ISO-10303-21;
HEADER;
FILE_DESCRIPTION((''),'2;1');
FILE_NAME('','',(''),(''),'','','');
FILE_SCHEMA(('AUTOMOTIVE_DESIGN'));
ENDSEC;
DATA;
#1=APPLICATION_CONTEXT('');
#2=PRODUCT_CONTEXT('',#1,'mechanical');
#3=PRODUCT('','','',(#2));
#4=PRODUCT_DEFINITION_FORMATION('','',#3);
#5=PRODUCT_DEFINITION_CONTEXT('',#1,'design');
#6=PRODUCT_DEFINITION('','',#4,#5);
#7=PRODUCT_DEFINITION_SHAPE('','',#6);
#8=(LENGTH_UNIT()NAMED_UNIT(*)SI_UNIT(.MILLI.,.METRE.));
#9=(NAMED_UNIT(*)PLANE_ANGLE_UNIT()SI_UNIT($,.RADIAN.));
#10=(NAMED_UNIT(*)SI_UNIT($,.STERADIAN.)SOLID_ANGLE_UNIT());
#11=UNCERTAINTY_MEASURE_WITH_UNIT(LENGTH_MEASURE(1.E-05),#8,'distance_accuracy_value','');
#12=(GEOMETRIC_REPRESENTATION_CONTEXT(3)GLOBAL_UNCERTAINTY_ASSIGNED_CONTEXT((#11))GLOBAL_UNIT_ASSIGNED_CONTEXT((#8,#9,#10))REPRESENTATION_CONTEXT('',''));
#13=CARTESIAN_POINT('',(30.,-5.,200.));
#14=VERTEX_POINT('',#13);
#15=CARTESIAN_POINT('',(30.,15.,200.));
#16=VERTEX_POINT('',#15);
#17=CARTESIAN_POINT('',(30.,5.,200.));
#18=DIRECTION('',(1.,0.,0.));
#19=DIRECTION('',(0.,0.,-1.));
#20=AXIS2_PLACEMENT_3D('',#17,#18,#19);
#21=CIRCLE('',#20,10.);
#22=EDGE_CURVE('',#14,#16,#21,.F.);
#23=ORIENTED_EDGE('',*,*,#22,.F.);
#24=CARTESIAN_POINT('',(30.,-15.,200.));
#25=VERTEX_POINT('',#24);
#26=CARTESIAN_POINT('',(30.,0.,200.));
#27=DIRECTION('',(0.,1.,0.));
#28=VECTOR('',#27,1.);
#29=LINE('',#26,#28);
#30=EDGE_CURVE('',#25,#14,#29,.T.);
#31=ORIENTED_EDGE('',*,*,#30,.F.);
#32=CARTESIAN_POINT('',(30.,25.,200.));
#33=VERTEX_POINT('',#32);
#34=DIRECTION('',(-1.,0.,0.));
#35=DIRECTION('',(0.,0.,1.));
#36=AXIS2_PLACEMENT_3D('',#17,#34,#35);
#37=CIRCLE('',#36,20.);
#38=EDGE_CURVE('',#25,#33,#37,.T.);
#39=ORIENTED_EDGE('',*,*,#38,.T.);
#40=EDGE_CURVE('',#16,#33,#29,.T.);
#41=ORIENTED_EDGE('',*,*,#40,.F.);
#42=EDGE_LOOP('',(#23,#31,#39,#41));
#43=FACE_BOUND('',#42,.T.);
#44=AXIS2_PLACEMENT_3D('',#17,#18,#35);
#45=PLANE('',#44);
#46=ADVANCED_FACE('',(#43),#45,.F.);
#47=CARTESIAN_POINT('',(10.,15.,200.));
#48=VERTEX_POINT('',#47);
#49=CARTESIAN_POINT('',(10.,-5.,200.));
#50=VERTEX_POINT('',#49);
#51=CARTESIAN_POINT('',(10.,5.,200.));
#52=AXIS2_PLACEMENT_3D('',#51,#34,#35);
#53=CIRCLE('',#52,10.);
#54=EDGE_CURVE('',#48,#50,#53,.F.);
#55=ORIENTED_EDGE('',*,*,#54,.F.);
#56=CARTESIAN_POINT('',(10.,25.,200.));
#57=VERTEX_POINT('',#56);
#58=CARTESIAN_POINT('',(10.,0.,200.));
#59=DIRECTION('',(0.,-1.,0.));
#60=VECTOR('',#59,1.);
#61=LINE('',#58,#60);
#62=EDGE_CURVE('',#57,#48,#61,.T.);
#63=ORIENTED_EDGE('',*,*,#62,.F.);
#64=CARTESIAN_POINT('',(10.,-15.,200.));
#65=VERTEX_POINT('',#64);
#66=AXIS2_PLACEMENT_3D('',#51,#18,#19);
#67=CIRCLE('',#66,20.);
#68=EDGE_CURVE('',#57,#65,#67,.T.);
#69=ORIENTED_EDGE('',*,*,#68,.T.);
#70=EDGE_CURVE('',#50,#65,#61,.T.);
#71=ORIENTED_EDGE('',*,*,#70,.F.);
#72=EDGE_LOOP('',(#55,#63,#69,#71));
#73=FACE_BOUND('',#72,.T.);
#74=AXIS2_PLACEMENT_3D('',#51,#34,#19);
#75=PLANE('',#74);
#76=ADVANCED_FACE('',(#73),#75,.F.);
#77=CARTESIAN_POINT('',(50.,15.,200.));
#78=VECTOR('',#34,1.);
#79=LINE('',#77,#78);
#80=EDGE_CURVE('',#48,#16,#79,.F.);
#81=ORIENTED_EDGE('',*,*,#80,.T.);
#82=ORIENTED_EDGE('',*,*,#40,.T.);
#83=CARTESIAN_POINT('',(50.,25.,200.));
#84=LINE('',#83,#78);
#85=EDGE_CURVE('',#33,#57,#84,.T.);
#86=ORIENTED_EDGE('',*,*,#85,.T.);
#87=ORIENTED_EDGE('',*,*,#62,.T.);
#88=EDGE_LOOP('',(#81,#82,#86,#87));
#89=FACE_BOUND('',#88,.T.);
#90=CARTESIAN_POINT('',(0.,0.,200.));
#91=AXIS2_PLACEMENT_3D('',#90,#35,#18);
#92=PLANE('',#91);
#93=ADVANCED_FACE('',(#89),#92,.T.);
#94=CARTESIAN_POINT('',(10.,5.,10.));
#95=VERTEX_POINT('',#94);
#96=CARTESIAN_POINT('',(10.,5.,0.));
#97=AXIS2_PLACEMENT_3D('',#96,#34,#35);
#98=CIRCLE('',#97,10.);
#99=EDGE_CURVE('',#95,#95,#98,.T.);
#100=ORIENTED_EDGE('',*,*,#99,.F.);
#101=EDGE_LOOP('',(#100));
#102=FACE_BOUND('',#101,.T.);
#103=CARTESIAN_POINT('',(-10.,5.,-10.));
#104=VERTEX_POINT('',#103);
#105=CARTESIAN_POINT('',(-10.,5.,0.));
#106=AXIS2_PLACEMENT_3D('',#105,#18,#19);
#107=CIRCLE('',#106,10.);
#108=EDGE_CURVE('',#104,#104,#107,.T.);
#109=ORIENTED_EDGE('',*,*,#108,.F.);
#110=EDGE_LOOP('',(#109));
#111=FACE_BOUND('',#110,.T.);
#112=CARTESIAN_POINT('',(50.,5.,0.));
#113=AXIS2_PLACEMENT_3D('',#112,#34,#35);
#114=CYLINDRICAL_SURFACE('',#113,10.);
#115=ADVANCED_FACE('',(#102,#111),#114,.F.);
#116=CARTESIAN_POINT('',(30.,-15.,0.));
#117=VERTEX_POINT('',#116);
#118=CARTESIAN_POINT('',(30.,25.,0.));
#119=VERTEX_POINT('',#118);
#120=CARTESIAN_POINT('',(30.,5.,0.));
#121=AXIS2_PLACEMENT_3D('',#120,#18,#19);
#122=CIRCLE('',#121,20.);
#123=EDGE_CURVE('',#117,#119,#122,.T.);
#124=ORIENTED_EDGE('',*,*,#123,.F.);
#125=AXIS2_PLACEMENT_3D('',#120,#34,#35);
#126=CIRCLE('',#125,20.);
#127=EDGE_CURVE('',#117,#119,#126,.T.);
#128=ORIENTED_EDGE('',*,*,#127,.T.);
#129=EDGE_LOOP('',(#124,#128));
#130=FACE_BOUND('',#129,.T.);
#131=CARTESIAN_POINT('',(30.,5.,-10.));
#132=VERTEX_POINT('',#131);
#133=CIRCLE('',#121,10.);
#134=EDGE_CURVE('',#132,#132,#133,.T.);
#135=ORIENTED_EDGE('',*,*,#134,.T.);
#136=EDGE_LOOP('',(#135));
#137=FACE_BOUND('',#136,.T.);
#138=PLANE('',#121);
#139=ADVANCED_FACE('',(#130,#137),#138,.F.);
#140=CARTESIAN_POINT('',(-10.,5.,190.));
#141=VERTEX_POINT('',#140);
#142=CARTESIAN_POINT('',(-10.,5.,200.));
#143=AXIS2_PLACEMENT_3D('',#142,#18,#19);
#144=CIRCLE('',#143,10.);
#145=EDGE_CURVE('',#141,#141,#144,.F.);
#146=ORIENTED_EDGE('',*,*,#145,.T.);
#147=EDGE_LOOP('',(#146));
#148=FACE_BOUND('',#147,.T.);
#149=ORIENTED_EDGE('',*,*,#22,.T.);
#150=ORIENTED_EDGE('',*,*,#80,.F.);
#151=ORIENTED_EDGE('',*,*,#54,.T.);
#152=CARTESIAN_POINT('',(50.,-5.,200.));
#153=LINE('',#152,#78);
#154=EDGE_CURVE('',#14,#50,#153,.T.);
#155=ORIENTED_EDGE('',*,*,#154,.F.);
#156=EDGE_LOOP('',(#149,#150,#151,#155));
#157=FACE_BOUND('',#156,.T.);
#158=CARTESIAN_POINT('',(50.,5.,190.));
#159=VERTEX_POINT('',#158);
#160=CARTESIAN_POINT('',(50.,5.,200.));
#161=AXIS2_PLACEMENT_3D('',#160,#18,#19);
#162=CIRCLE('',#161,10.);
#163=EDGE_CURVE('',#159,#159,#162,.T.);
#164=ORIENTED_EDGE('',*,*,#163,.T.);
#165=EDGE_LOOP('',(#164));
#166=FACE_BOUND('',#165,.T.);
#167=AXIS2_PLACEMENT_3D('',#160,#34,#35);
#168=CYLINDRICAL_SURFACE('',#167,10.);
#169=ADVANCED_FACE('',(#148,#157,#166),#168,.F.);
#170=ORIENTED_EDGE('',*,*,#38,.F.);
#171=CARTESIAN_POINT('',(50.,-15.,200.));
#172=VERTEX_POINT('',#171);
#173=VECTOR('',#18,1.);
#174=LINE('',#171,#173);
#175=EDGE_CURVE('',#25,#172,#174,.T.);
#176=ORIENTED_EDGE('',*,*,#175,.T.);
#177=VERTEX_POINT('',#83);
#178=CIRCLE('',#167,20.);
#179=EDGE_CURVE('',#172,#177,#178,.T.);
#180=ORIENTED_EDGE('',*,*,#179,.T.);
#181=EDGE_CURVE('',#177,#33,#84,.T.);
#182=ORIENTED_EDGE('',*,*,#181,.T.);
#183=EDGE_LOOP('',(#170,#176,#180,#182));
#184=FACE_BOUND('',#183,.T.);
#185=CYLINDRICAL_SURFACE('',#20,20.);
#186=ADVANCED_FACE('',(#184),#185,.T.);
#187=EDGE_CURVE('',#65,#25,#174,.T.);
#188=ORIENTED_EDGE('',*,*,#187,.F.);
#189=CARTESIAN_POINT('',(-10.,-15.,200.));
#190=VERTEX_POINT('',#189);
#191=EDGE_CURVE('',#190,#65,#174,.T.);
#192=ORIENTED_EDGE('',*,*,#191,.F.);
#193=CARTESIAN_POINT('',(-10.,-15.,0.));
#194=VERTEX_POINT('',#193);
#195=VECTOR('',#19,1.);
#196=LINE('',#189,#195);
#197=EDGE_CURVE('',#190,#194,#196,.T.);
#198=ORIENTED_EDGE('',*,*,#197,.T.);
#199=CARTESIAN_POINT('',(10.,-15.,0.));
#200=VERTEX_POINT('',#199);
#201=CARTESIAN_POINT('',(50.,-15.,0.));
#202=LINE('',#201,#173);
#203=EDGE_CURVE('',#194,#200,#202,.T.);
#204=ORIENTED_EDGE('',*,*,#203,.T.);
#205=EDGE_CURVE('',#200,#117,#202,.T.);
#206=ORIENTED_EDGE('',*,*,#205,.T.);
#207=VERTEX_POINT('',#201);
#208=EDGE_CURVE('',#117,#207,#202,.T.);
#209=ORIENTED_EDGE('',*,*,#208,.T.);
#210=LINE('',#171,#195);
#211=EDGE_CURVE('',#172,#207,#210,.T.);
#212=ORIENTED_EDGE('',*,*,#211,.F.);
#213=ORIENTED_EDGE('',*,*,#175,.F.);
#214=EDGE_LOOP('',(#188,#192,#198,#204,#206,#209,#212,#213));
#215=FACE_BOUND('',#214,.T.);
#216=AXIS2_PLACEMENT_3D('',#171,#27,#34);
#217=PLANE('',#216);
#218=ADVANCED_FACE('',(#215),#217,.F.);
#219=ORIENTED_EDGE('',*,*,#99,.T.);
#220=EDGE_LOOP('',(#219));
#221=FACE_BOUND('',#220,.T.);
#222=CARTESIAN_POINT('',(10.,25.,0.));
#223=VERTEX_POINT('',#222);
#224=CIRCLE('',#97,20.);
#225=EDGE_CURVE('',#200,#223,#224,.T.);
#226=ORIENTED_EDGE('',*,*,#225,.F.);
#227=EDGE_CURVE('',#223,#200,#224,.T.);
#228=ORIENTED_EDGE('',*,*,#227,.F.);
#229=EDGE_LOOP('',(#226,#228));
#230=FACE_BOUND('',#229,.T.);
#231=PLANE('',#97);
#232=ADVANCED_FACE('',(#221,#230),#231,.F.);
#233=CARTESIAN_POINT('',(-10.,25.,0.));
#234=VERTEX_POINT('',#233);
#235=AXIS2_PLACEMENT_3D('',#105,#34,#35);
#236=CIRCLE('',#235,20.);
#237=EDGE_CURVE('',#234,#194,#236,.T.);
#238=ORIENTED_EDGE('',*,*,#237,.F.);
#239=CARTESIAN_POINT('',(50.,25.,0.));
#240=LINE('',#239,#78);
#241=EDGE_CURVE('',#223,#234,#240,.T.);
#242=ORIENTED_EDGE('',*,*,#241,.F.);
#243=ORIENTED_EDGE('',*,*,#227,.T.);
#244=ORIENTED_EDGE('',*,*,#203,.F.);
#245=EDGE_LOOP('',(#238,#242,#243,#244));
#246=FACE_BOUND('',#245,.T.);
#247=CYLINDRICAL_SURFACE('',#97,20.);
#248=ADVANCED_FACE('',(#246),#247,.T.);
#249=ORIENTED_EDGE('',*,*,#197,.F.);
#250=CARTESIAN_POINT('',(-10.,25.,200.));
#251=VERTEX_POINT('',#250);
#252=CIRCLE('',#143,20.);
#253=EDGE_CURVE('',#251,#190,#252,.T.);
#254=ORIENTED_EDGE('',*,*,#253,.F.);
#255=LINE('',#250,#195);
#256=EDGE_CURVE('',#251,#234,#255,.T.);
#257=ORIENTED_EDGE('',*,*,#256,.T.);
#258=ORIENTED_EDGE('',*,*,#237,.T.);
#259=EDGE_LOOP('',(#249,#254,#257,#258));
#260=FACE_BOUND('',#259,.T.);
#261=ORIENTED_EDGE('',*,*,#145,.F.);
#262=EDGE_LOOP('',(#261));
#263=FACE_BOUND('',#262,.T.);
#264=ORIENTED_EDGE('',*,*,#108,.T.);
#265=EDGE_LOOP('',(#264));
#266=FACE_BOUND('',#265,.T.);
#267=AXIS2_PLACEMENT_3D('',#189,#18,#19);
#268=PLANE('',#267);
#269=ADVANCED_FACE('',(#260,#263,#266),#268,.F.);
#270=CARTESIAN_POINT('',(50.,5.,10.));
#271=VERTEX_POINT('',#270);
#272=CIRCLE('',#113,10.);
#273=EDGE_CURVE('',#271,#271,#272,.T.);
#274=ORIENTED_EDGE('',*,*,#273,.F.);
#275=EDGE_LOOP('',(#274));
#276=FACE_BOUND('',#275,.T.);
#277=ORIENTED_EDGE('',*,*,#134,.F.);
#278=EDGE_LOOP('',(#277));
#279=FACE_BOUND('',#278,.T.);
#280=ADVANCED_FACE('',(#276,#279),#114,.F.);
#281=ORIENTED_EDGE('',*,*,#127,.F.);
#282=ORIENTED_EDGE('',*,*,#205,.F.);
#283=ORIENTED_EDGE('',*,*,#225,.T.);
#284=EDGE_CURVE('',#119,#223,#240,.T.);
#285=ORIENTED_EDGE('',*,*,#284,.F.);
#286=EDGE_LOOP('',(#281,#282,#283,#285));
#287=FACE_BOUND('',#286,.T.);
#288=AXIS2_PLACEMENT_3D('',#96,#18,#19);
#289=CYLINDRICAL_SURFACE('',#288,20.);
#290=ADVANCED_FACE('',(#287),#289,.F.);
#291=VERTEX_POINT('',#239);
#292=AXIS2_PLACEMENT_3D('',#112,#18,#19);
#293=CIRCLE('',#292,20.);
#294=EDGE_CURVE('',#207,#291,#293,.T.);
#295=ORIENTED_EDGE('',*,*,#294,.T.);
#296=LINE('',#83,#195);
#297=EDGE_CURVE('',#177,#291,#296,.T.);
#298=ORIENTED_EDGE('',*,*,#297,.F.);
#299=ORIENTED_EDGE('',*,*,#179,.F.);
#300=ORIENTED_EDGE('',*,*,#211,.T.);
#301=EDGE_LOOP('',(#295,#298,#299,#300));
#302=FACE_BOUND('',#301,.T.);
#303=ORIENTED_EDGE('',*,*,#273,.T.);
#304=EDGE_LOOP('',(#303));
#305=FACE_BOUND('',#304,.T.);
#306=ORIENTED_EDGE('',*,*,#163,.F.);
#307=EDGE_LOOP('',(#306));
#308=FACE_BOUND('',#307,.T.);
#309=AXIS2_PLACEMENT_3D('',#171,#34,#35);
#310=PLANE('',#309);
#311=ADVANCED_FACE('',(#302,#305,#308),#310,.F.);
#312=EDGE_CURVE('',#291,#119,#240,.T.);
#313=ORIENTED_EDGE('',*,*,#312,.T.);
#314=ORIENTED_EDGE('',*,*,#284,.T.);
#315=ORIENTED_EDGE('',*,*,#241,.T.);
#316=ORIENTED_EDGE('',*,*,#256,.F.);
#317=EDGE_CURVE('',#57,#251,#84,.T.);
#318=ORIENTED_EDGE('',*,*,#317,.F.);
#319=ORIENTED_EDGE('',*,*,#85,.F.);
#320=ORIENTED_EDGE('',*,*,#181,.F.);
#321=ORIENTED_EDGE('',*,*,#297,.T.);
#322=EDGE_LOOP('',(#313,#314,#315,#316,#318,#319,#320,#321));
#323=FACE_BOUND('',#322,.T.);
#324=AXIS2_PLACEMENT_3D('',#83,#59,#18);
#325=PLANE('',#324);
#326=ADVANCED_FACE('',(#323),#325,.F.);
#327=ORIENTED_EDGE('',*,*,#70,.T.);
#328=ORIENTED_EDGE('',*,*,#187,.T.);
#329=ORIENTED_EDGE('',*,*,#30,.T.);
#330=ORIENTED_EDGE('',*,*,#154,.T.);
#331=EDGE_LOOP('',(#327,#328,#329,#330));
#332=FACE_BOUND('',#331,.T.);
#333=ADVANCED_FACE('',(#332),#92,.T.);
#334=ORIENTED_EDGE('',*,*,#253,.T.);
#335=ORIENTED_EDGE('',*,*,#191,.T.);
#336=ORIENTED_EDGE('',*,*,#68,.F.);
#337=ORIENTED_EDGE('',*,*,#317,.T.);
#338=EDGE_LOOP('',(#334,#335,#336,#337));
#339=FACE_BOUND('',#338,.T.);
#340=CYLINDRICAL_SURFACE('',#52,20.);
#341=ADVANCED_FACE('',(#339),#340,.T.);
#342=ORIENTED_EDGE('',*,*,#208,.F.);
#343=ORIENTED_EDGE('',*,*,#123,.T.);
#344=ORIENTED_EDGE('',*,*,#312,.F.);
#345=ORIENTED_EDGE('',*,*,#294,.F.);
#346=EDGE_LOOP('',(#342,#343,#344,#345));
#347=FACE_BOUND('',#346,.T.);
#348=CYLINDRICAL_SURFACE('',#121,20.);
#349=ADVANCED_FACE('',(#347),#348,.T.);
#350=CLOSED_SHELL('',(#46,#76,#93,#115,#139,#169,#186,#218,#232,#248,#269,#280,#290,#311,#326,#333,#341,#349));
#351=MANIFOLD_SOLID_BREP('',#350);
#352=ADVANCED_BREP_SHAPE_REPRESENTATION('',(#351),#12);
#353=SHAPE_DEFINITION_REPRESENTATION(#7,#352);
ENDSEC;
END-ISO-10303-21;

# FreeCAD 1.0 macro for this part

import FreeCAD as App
import Part
import Sketcher

V = App.Vector
Q = App.Units.Quantity


def add_polygon(sketch, points):
    """Adds a closed chain of lines whose ends are joined by coincident constraints."""
    first, n = sketch.GeometryCount, len(points)
    for a, b in zip(points, points[1:] + points[:1]):
        sketch.addGeometry(Part.LineSegment(App.Vector(*a, 0), App.Vector(*b, 0)), False)
    for i in range(n):
        sketch.addConstraint(Sketcher.Constraint("Coincident", first + i, 2, first + (i + 1) % n, 1))

doc = App.newDocument("Part")
body = doc.addObject("PartDesign::Body", "Body")

# Sketch on XY plane
sketch1 = body.newObject("Sketcher::SketchObject", "Sketch")
sketch1.AttachmentSupport = (doc.getObject("XY_Plane"), [""])
sketch1.MapMode = "FlatFace"
add_polygon(sketch1, [(-10, 25), (-10, -15), (50, -15), (50, 25)])  # lines 0-3
sketch1.addConstraint([
    Sketcher.Constraint("Vertical", 0),
    Sketcher.Constraint("Horizontal", 1),
    Sketcher.Constraint("Vertical", 2),
    Sketcher.Constraint("Horizontal", 3),
    Sketcher.Constraint("DistanceX", 1, 1, 1, 2, Q("60 mm")),
    Sketcher.Constraint("DistanceY", 0, 2, 0, 1, Q("40 mm")),
    Sketcher.Constraint("DistanceX", 0, 2, -1, 1, Q("10 mm")),
    Sketcher.Constraint("DistanceY", 0, 2, -1, 1, Q("15 mm")),
])
pad1 = body.newObject("PartDesign::Pad", "Pad")
pad1.Profile = sketch1
pad1.Length = 200

# Sketch on YZ plane
sketch2 = body.newObject("Sketcher::SketchObject", "Sketch001")
sketch2.AttachmentSupport = (doc.getObject("YZ_Plane"), [""])
sketch2.MapMode = "FlatFace"
sketch2.AttachmentOffset = App.Placement(V(0, 0, 50), App.Rotation())
sketch2.addGeometry(Part.Circle(V(5, 0, 0), V(0, 0, 1), 20), False)
sketch2.addConstraint([
    Sketcher.Constraint("PointOnObject", 0, 3, -1),
    Sketcher.Constraint("Diameter", 0, Q("40 mm")),
    Sketcher.Constraint("DistanceX", -1, 1, 0, 3, Q("5 mm")),
])
pad2 = body.newObject("PartDesign::Pad", "Pad001")
pad2.Profile = sketch2
pad2.Length = 20
pad2.Reversed = True

# Sketch on YZ plane
sketch3 = body.newObject("Sketcher::SketchObject", "Sketch002")
sketch3.AttachmentSupport = (doc.getObject("YZ_Plane"), [""])
sketch3.MapMode = "FlatFace"
sketch3.AttachmentOffset = App.Placement(V(0, 0, 10), App.Rotation())
sketch3.addGeometry(Part.Circle(V(5, 0, 0), V(0, 0, 1), 20), False)
sketch3.addConstraint([
    Sketcher.Constraint("PointOnObject", 0, 3, -1),
    Sketcher.Constraint("Diameter", 0, Q("40 mm")),
    Sketcher.Constraint("DistanceX", -1, 1, 0, 3, Q("5 mm")),
])
pad3 = body.newObject("PartDesign::Pad", "Pad002")
pad3.Profile = sketch3
pad3.Length = 20
pad3.Reversed = True

# Sketch on YZ plane
sketch4 = body.newObject("Sketcher::SketchObject", "Sketch003")
sketch4.AttachmentSupport = (doc.getObject("YZ_Plane"), [""])
sketch4.MapMode = "FlatFace"
sketch4.AttachmentOffset = App.Placement(V(0, 0, -10), App.Rotation())
sketch4.addGeometry(Part.Circle(V(5, 0, 0), V(0, 0, 1), 10), False)
sketch4.addConstraint([
    Sketcher.Constraint("PointOnObject", 0, 3, -1),
    Sketcher.Constraint("Diameter", 0, Q("20 mm")),
    Sketcher.Constraint("DistanceX", -1, 1, 0, 3, Q("5 mm")),
])
pocket1 = body.newObject("PartDesign::Pocket", "Pocket")
pocket1.Profile = sketch4
pocket1.Length = 422.594817
pocket1.Midplane = True
doc.recompute()

datumplane = body.newObject("PartDesign::Plane", "DatumPlane")
datumplane.AttachmentSupport = (doc.getObject("XY_Plane"), [""])
datumplane.MapMode = "FlatFace"
datumplane.AttachmentOffset = App.Placement(V(0, 0, 100), App.Rotation())
mirrored = body.newObject("PartDesign::Mirrored", "Mirrored")
mirrored.Originals = [pad2, pad3, pocket1]
mirrored.MirrorPlane = (datumplane, [""])
body.Tip = mirrored

# Sketch on YZ plane
sketch5 = body.newObject("Sketcher::SketchObject", "Sketch004")
sketch5.AttachmentSupport = (doc.getObject("YZ_Plane"), [""])
sketch5.MapMode = "FlatFace"
sketch5.AttachmentOffset = App.Placement(V(0, 0, 30), App.Rotation())
sketch5.addGeometry(Part.Circle(V(5, 0, 0), V(0, 0, 1), 20), False)
sketch5.addConstraint([
    Sketcher.Constraint("PointOnObject", 0, 3, -1),
    Sketcher.Constraint("Diameter", 0, Q("40 mm")),
    Sketcher.Constraint("DistanceX", -1, 1, 0, 3, Q("5 mm")),
])
pocket2 = body.newObject("PartDesign::Pocket", "Pocket001")
pocket2.Profile = sketch5
pocket2.Length = 20

doc.recompute()
